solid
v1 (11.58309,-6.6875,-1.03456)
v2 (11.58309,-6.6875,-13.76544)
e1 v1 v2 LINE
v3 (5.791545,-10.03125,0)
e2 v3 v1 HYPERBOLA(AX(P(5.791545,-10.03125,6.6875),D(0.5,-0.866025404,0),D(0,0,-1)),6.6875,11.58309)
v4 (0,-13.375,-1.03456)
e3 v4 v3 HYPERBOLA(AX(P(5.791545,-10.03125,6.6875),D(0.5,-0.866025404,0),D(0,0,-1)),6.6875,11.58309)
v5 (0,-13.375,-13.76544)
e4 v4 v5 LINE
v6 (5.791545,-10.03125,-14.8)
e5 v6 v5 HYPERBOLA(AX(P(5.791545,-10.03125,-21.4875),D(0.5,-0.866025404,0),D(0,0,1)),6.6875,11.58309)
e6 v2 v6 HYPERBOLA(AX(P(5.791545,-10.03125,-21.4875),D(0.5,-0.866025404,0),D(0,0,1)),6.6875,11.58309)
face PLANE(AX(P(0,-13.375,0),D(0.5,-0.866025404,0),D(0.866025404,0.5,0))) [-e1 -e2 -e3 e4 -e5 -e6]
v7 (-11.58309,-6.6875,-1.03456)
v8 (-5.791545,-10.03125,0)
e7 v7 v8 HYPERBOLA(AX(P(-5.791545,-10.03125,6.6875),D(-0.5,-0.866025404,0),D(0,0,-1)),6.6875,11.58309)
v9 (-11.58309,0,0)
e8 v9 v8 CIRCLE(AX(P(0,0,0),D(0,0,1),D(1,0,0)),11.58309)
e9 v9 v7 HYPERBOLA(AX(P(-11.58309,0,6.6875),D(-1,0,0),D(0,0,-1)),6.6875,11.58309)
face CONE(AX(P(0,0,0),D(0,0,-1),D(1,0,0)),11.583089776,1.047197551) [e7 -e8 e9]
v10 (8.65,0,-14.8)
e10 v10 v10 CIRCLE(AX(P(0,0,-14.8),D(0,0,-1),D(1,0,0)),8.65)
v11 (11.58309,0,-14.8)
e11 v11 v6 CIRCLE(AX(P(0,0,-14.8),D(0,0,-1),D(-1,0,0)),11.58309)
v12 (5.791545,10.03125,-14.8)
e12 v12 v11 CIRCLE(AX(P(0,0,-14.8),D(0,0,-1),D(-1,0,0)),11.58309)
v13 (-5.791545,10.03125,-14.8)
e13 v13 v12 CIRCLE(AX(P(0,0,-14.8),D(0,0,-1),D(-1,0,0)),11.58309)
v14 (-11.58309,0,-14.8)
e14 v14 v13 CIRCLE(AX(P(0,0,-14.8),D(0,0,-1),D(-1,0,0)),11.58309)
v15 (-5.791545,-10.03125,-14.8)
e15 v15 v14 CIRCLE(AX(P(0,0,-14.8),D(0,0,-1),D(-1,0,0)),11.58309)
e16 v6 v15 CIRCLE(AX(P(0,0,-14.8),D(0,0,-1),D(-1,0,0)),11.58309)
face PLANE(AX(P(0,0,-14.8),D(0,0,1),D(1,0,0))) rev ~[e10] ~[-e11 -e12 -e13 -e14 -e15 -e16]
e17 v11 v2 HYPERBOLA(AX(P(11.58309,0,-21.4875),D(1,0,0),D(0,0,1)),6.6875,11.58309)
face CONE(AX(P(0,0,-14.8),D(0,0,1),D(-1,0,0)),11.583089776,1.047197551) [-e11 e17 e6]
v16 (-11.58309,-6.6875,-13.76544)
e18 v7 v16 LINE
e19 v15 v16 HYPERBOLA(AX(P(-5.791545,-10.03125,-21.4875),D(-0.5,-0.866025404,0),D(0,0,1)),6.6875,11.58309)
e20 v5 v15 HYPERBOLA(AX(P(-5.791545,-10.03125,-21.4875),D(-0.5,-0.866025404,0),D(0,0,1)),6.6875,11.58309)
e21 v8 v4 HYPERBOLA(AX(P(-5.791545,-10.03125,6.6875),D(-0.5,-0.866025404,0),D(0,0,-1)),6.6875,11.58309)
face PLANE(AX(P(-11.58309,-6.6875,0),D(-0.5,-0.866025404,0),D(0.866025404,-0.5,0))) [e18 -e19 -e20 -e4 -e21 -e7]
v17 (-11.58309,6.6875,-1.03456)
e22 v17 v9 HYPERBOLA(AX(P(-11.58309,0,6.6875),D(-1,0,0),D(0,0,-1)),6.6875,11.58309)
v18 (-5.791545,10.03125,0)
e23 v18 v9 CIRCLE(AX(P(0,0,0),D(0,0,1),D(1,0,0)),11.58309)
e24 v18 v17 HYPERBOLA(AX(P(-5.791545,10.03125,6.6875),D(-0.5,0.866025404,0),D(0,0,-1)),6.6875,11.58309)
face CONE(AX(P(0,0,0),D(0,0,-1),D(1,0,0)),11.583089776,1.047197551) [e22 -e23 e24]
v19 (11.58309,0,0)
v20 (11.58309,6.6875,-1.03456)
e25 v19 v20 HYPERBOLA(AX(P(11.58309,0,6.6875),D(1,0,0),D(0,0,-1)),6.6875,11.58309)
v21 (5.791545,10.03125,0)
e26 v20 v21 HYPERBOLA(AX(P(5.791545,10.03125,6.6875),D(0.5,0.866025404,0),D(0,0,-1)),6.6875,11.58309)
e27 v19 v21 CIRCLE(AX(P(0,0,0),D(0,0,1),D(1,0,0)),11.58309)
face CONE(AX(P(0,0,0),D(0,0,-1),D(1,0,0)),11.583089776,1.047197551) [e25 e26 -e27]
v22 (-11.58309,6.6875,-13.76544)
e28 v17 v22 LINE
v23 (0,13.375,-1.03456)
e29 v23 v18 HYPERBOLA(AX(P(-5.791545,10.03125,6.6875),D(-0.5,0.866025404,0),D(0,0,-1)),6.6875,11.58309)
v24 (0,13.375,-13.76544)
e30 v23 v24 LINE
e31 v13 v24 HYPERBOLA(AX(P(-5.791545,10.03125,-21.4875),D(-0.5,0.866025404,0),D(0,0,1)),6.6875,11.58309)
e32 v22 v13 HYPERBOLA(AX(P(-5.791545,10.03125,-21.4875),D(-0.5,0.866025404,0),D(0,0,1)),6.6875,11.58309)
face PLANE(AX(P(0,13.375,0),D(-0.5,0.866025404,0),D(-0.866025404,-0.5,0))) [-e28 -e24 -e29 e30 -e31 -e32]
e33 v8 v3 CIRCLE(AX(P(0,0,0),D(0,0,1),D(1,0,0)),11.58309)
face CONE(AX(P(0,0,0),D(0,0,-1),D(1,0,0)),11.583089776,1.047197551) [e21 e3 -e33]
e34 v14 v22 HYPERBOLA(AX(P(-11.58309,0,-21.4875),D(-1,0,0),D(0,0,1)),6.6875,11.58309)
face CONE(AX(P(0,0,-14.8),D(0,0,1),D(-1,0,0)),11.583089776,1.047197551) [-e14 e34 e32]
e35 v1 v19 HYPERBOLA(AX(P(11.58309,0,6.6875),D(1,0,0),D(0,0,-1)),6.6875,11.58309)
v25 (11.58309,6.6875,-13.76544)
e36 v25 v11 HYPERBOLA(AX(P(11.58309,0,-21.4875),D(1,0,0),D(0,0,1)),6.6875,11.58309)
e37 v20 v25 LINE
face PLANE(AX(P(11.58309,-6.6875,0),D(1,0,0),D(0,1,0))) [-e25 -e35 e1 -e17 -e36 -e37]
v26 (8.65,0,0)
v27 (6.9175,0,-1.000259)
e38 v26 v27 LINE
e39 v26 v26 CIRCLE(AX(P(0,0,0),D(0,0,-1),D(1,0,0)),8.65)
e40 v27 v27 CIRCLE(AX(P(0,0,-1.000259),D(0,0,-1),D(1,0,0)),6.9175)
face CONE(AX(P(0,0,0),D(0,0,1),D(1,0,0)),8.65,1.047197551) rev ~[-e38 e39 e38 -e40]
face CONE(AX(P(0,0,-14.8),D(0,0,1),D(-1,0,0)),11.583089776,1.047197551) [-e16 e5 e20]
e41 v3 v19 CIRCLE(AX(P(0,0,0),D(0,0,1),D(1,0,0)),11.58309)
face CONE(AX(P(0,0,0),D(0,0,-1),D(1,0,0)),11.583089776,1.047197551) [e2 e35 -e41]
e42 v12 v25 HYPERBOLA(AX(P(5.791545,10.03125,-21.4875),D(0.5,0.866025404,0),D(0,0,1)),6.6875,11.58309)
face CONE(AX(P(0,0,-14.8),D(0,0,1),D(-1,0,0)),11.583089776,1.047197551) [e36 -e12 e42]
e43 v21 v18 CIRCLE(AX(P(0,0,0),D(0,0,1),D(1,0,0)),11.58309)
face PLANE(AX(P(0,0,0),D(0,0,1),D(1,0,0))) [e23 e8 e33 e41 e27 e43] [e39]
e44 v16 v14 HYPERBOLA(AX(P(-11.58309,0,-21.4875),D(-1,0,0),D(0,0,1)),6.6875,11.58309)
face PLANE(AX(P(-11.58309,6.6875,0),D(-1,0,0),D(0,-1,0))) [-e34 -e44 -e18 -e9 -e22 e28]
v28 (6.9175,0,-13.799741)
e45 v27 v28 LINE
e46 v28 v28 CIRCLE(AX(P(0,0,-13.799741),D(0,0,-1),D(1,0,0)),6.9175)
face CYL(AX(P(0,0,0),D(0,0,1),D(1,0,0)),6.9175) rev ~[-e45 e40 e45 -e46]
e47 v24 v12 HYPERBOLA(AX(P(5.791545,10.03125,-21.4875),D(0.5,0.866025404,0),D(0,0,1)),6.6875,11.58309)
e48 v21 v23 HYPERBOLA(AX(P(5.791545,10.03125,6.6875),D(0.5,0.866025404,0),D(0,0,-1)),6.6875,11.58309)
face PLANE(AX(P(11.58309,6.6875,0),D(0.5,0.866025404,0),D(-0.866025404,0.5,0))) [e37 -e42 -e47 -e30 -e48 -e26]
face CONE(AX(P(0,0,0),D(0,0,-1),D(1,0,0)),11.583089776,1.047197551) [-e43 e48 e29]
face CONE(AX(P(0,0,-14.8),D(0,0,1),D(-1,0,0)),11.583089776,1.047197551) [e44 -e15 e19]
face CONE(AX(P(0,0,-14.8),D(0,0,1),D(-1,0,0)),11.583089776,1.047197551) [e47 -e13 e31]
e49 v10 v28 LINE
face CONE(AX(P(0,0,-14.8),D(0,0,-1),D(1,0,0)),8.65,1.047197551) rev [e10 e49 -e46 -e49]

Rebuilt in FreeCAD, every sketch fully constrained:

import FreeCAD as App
import Part
import Sketcher
Q = App.Units.Quantity


def faces_at(feature, points):
    """Names of the faces that lie closest to the given points."""
    faces = feature.Shape.Faces
    near = lambda p: min(range(len(faces)), key=lambda i: faces[i].distToShape(Part.Vertex(*p))[0])
    return sorted({f"Face{near(p) + 1}" for p in points})

doc = App.newDocument("Part")
body = doc.addObject("PartDesign::Body", "Body")

sketch1 = body.newObject("Sketcher::SketchObject", "Sketch")
sketch1.AttachmentSupport = (doc.getObject("XY_Plane"), [""])
sketch1.MapMode = "FlatFace"
sketch1.addGeometry(Part.LineSegment(App.Vector(0, 13, 0), App.Vector(-12, 7, 0)), False)
sketch1.addGeometry(Part.LineSegment(App.Vector(-12, 7, 0), App.Vector(-12, -7, 0)), False)
sketch1.addGeometry(Part.LineSegment(App.Vector(-12, -7, 0), App.Vector(0, -13, 0)), False)
sketch1.addGeometry(Part.LineSegment(App.Vector(0, -13, 0), App.Vector(12, -7, 0)), False)
sketch1.addGeometry(Part.LineSegment(App.Vector(12, -7, 0), App.Vector(12, 7, 0)), False)
sketch1.addGeometry(Part.LineSegment(App.Vector(12, 7, 0), App.Vector(0, 13, 0)), False)
sketch1.addGeometry(Part.Circle(App.Vector(0, 0, 0), App.Vector(0, 0, 1), 7), False)
sketch1.addConstraint(Sketcher.Constraint("Coincident", 0, 2, 1, 1))
sketch1.addConstraint(Sketcher.Constraint("Coincident", 1, 2, 2, 1))
sketch1.addConstraint(Sketcher.Constraint("Coincident", 2, 2, 3, 1))
sketch1.addConstraint(Sketcher.Constraint("Coincident", 3, 2, 4, 1))
sketch1.addConstraint(Sketcher.Constraint("Coincident", 4, 2, 5, 1))
sketch1.addConstraint(Sketcher.Constraint("Coincident", 5, 2, 0, 1))
sketch1.addConstraint(Sketcher.Constraint("Vertical", 1))
sketch1.addConstraint(Sketcher.Constraint("Vertical", 4))
sketch1.addConstraint(Sketcher.Constraint("Coincident", 6, 3, -1, 1))
sketch1.addConstraint(Sketcher.Constraint("Symmetric", 0, 2, 3, 2, -1, 1))
sketch1.addConstraint(Sketcher.Constraint("Symmetric", 2, 2, 5, 2, -1, 1))
sketch1.addConstraint(Sketcher.Constraint("PointOnObject", 2, 2, -2))
sketch1.addConstraint(Sketcher.Constraint("Parallel", 2, 5))
sketch1.addConstraint(Sketcher.Constraint("Horizontal", 1, 2, 3, 2))
sketch1.addConstraint(Sketcher.Constraint("Angle", 0, Q("-150 deg")))
sketch1.addConstraint(Sketcher.Constraint("Diameter", 6, 13.835))
sketch1.addConstraint(Sketcher.Constraint("DistanceY", 1, 2, 1, 1, 13.375))
sketch1.addConstraint(Sketcher.Constraint("Distance", 0, 13.375))
pad1 = body.newObject("PartDesign::Pad", "Pad")
pad1.Profile = sketch1
pad1.Length = 14.8
pad1.Reversed = True

sketch2 = body.newObject("Sketcher::SketchObject", "Sketch001")
sketch2.AttachmentSupport = (doc.getObject("YZ_Plane"), [""])
sketch2.MapMode = "FlatFace"
sketch2.addGeometry(Part.LineSegment(App.Vector(6.9, -1, 0), App.Vector(8.7, 0, 0)), False)
sketch2.addGeometry(Part.LineSegment(App.Vector(8.7, 0, 0), App.Vector(0, 0, 0)), False)
sketch2.addGeometry(Part.LineSegment(App.Vector(0, 0, 0), App.Vector(0, -1, 0)), False)
sketch2.addGeometry(Part.LineSegment(App.Vector(0, -1, 0), App.Vector(6.9, -1, 0)), False)
sketch2.addGeometry(Part.LineSegment(App.Vector(0, -14.8, 0), App.Vector(8.7, -14.8, 0)), False)
sketch2.addGeometry(Part.LineSegment(App.Vector(8.7, -14.8, 0), App.Vector(6.9, -13.8, 0)), False)
sketch2.addGeometry(Part.LineSegment(App.Vector(6.9, -13.8, 0), App.Vector(0, -13.8, 0)), False)
sketch2.addGeometry(Part.LineSegment(App.Vector(0, -13.8, 0), App.Vector(0, -14.8, 0)), False)
sketch2.addConstraint(Sketcher.Constraint("Coincident", 0, 2, 1, 1))
sketch2.addConstraint(Sketcher.Constraint("Coincident", 1, 2, 2, 1))
sketch2.addConstraint(Sketcher.Constraint("Coincident", 2, 2, 3, 1))
sketch2.addConstraint(Sketcher.Constraint("Coincident", 3, 2, 0, 1))
sketch2.addConstraint(Sketcher.Constraint("Coincident", 4, 2, 5, 1))
sketch2.addConstraint(Sketcher.Constraint("Coincident", 5, 2, 6, 1))
sketch2.addConstraint(Sketcher.Constraint("Coincident", 6, 2, 7, 1))
sketch2.addConstraint(Sketcher.Constraint("Coincident", 7, 2, 4, 1))
sketch2.addConstraint(Sketcher.Constraint("Horizontal", 1))
sketch2.addConstraint(Sketcher.Constraint("Vertical", 2))
sketch2.addConstraint(Sketcher.Constraint("Horizontal", 3))
sketch2.addConstraint(Sketcher.Constraint("Horizontal", 4))
sketch2.addConstraint(Sketcher.Constraint("Horizontal", 6))
sketch2.addConstraint(Sketcher.Constraint("Vertical", 7))
sketch2.addConstraint(Sketcher.Constraint("Coincident", 1, 2, -1, 1))
sketch2.addConstraint(Sketcher.Constraint("PointOnObject", 6, 2, -2))
sketch2.addConstraint(Sketcher.Constraint("Vertical", 0, 2, 4, 2))
sketch2.addConstraint(Sketcher.Constraint("Vertical", 3, 2, 5, 2))
sketch2.addConstraint(Sketcher.Constraint("Equal", 2, 7))
sketch2.addConstraint(Sketcher.Constraint("Angle", 0, Q("30 deg")))
sketch2.addConstraint(Sketcher.Constraint("DistanceX", 1, 2, 1, 1, 8.65))
sketch2.addConstraint(Sketcher.Constraint("DistanceY", 4, 2, -1, 1, 14.8))
sketch2.addConstraint(Sketcher.Constraint("DistanceX", 3, 1, 3, 2, 6.9175))
groove = body.newObject("PartDesign::Groove", "Groove")
groove.Profile = sketch2
groove.ReferenceAxis = (sketch2, ["V_Axis"])
groove.Angle = 360
body2 = doc.addObject("PartDesign::Body", "Body001")

sketch3 = body2.newObject("Sketcher::SketchObject", "Sketch002")
sketch3.AttachmentSupport = (doc.getObject("XY_Plane001"), [""])
sketch3.MapMode = "FlatFace"
sketch3.addGeometry(Part.Circle(App.Vector(0, 0, 0), App.Vector(0, 0, 1), 20), False)
sketch3.addGeometry(Part.Circle(App.Vector(0, 0, 0), App.Vector(0, 0, 1), 12), False)
sketch3.addConstraint(Sketcher.Constraint("Coincident", 0, 3, -1, 1))
sketch3.addConstraint(Sketcher.Constraint("Coincident", 1, 3, -1, 1))
sketch3.addConstraint(Sketcher.Constraint("Diameter", 0, 40.125))
sketch3.addConstraint(Sketcher.Constraint("Diameter", 1, 23.16618))
pad2 = body2.newObject("PartDesign::Pad", "Pad001")
pad2.Profile = sketch3
pad2.Length = 2.96
pad2.Reversed = True
doc.recompute()

draft = body2.newObject("PartDesign::Draft", "Draft")
draft.Base = (pad2, faces_at(pad2, [(-20.062, 0, -1.48), (-11.583, 0, -1.48)]))
draft.NeutralPlane = (doc.getObject("XY_Plane001"), [""])
draft.Angle = 60
draft.Reversed = True
doc.recompute()

boolean = body.newObject("PartDesign::Boolean", "Boolean")
boolean.Type = "Cut"
boolean.addObjects([body2])
body3 = doc.addObject("PartDesign::Body", "Body002")

sketch4 = body3.newObject("Sketcher::SketchObject", "Sketch003")
sketch4.AttachmentSupport = (doc.getObject("XY_Plane002"), [""])
sketch4.MapMode = "FlatFace"
sketch4.AttachmentOffset = App.Placement(App.Vector(0, 0, -14.8), App.Rotation())
sketch4.addGeometry(Part.Circle(App.Vector(0, 0, 0), App.Vector(0, 0, 1), 20), False)
sketch4.addGeometry(Part.Circle(App.Vector(0, 0, 0), App.Vector(0, 0, 1), 12), False)
sketch4.addConstraint(Sketcher.Constraint("Coincident", 0, 3, -1, 1))
sketch4.addConstraint(Sketcher.Constraint("Coincident", 1, 3, -1, 1))
sketch4.addConstraint(Sketcher.Constraint("Diameter", 0, 40.125))
sketch4.addConstraint(Sketcher.Constraint("Diameter", 1, 23.16618))
pad3 = body3.newObject("PartDesign::Pad", "Pad002")
pad3.Profile = sketch4
pad3.Length = 2.96
doc.recompute()

datumplane = body3.newObject("PartDesign::Plane", "DatumPlane")
datumplane.AttachmentSupport = (doc.getObject("XY_Plane002"), [""])
datumplane.MapMode = "FlatFace"
datumplane.AttachmentOffset = App.Placement(App.Vector(0, 0, -14.8), App.Rotation())
draft2 = body3.newObject("PartDesign::Draft", "Draft001")
draft2.Base = (pad3, faces_at(pad3, [(20.062, 0, -13.32), (11.583, 0, -13.32)]))
draft2.NeutralPlane = (datumplane, [""])
draft2.Angle = 60
draft2.Reversed = False
doc.recompute()

boolean2 = body.newObject("PartDesign::Boolean", "Boolean001")
boolean2.Type = "Cut"
boolean2.addObjects([body3])

doc.recompute()
